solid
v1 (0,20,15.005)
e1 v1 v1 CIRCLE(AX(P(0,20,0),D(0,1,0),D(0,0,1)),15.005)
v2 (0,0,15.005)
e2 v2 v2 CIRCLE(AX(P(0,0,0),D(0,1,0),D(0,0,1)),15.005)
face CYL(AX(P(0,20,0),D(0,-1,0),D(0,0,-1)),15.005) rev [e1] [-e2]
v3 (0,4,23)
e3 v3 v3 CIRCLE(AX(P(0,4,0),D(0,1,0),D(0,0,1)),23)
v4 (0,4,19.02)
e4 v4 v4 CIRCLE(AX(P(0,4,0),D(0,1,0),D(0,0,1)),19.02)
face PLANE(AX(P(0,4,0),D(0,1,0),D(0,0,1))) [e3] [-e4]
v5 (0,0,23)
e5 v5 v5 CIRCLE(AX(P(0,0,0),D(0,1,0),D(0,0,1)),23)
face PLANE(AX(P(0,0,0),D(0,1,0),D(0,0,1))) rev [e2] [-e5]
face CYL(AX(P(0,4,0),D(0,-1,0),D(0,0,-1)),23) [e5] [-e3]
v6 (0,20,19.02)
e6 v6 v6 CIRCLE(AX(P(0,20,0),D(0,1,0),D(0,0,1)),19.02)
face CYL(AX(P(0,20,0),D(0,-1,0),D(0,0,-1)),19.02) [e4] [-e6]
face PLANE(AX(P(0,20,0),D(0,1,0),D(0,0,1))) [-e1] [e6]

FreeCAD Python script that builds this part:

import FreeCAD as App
import Part
import Sketcher

V = App.Vector

doc = App.newDocument("Part")
body = doc.addObject("PartDesign::Body", "Body")

# Sketch on XZ plane
sketch1 = doc.addObject("Sketcher::SketchObject", "Sketch")
body.addObject(sketch1)
sketch1.AttachmentSupport = (doc.XZ_Plane, [""])
sketch1.MapMode = "FlatFace"
sketch1.addGeometry(Part.Circle(V(0, 0, 0), V(0, 0, 1), 19), False)
sketch1.addGeometry(Part.Circle(V(0, 0, 0), V(0, 0, 1), 15), False)
sketch1.addConstraint(Sketcher.Constraint("Coincident", 0, 3, -1, 1))
sketch1.addConstraint(Sketcher.Constraint("Coincident", 1, 3, -1, 1))
sketch1.addConstraint(Sketcher.Constraint("Diameter", 0, 38.04))
sketch1.addConstraint(Sketcher.Constraint("Diameter", 1, 30.01))
pad1 = doc.addObject("PartDesign::Pad", "Pad")
body.addObject(pad1)
pad1.Profile = sketch1
pad1.Length = 20
pad1.Reversed = True

# Sketch on XZ plane
sketch2 = doc.addObject("Sketcher::SketchObject", "Sketch001")
body.addObject(sketch2)
sketch2.AttachmentSupport = (doc.XZ_Plane, [""])
sketch2.MapMode = "FlatFace"
sketch2.addGeometry(Part.Circle(V(0, 0, 0), V(0, 0, 1), 23), False)
sketch2.addGeometry(Part.Circle(V(0, 0, 0), V(0, 0, 1), 19), False)
sketch2.addConstraint(Sketcher.Constraint("Coincident", 0, 3, -1, 1))
sketch2.addConstraint(Sketcher.Constraint("Coincident", 1, 3, -1, 1))
sketch2.addConstraint(Sketcher.Constraint("Diameter", 0, 46.0))
sketch2.addConstraint(Sketcher.Constraint("Diameter", 1, 38.04))
pad2 = doc.addObject("PartDesign::Pad", "Pad001")
body.addObject(pad2)
pad2.Profile = sketch2
pad2.Length = 4
pad2.Reversed = True

doc.recompute()
